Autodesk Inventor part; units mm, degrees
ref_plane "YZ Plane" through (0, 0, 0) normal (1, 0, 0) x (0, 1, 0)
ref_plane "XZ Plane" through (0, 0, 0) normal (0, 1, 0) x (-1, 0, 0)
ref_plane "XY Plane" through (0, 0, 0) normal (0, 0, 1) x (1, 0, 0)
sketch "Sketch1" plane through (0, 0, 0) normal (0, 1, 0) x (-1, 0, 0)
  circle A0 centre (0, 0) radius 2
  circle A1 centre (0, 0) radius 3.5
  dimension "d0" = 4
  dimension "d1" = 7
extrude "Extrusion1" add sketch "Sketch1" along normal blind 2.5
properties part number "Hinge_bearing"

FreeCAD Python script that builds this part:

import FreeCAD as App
import Part
import Sketcher

doc = App.newDocument("Part")
params = doc.addObject("Spreadsheet::Sheet", "Params")
for row, (alias, value) in enumerate([
    ("sketch1_diameter", "7 mm"),
    ("sketch1_diameter2", "4 mm"),
    ("pad1_length", "2.5 mm"),
], start=1):
    params.set(f"A{row}", alias)
    params.set(f"B{row}", "=" + value)
    params.setAlias(f"B{row}", alias)

body = doc.addObject("PartDesign::Body", "Body")

# Sketch on XZ plane
sketch1 = doc.addObject("Sketcher::SketchObject", "Sketch")
body.addObject(sketch1)
sketch1.AttachmentSupport = (doc.XZ_Plane, [""])
sketch1.MapMode = "FlatFace"
sketch1.addGeometry([
    Part.Circle(App.Vector(0, 0, 0), App.Vector(0, 0, 1), 3.5),
    Part.Circle(App.Vector(0, 0, 0), App.Vector(0, 0, 1), 2),
], False)
sketch1.addConstraint([
    Sketcher.Constraint("Coincident", 0, 3, -1, 1),
    Sketcher.Constraint("Coincident", 1, 3, -1, 1),
    Sketcher.Constraint("Diameter", 0, 7.0),
    Sketcher.Constraint("Diameter", 1, 4.0),
])
sketch1.setExpression("Constraints[2]", "Params.sketch1_diameter")
sketch1.setExpression("Constraints[3]", "Params.sketch1_diameter2")
pad1 = doc.addObject("PartDesign::Pad", "Pad")
body.addObject(pad1)
pad1.Profile = sketch1
pad1.setExpression("Length", "Params.pad1_length")
pad1.Reversed = True

doc.recompute()
